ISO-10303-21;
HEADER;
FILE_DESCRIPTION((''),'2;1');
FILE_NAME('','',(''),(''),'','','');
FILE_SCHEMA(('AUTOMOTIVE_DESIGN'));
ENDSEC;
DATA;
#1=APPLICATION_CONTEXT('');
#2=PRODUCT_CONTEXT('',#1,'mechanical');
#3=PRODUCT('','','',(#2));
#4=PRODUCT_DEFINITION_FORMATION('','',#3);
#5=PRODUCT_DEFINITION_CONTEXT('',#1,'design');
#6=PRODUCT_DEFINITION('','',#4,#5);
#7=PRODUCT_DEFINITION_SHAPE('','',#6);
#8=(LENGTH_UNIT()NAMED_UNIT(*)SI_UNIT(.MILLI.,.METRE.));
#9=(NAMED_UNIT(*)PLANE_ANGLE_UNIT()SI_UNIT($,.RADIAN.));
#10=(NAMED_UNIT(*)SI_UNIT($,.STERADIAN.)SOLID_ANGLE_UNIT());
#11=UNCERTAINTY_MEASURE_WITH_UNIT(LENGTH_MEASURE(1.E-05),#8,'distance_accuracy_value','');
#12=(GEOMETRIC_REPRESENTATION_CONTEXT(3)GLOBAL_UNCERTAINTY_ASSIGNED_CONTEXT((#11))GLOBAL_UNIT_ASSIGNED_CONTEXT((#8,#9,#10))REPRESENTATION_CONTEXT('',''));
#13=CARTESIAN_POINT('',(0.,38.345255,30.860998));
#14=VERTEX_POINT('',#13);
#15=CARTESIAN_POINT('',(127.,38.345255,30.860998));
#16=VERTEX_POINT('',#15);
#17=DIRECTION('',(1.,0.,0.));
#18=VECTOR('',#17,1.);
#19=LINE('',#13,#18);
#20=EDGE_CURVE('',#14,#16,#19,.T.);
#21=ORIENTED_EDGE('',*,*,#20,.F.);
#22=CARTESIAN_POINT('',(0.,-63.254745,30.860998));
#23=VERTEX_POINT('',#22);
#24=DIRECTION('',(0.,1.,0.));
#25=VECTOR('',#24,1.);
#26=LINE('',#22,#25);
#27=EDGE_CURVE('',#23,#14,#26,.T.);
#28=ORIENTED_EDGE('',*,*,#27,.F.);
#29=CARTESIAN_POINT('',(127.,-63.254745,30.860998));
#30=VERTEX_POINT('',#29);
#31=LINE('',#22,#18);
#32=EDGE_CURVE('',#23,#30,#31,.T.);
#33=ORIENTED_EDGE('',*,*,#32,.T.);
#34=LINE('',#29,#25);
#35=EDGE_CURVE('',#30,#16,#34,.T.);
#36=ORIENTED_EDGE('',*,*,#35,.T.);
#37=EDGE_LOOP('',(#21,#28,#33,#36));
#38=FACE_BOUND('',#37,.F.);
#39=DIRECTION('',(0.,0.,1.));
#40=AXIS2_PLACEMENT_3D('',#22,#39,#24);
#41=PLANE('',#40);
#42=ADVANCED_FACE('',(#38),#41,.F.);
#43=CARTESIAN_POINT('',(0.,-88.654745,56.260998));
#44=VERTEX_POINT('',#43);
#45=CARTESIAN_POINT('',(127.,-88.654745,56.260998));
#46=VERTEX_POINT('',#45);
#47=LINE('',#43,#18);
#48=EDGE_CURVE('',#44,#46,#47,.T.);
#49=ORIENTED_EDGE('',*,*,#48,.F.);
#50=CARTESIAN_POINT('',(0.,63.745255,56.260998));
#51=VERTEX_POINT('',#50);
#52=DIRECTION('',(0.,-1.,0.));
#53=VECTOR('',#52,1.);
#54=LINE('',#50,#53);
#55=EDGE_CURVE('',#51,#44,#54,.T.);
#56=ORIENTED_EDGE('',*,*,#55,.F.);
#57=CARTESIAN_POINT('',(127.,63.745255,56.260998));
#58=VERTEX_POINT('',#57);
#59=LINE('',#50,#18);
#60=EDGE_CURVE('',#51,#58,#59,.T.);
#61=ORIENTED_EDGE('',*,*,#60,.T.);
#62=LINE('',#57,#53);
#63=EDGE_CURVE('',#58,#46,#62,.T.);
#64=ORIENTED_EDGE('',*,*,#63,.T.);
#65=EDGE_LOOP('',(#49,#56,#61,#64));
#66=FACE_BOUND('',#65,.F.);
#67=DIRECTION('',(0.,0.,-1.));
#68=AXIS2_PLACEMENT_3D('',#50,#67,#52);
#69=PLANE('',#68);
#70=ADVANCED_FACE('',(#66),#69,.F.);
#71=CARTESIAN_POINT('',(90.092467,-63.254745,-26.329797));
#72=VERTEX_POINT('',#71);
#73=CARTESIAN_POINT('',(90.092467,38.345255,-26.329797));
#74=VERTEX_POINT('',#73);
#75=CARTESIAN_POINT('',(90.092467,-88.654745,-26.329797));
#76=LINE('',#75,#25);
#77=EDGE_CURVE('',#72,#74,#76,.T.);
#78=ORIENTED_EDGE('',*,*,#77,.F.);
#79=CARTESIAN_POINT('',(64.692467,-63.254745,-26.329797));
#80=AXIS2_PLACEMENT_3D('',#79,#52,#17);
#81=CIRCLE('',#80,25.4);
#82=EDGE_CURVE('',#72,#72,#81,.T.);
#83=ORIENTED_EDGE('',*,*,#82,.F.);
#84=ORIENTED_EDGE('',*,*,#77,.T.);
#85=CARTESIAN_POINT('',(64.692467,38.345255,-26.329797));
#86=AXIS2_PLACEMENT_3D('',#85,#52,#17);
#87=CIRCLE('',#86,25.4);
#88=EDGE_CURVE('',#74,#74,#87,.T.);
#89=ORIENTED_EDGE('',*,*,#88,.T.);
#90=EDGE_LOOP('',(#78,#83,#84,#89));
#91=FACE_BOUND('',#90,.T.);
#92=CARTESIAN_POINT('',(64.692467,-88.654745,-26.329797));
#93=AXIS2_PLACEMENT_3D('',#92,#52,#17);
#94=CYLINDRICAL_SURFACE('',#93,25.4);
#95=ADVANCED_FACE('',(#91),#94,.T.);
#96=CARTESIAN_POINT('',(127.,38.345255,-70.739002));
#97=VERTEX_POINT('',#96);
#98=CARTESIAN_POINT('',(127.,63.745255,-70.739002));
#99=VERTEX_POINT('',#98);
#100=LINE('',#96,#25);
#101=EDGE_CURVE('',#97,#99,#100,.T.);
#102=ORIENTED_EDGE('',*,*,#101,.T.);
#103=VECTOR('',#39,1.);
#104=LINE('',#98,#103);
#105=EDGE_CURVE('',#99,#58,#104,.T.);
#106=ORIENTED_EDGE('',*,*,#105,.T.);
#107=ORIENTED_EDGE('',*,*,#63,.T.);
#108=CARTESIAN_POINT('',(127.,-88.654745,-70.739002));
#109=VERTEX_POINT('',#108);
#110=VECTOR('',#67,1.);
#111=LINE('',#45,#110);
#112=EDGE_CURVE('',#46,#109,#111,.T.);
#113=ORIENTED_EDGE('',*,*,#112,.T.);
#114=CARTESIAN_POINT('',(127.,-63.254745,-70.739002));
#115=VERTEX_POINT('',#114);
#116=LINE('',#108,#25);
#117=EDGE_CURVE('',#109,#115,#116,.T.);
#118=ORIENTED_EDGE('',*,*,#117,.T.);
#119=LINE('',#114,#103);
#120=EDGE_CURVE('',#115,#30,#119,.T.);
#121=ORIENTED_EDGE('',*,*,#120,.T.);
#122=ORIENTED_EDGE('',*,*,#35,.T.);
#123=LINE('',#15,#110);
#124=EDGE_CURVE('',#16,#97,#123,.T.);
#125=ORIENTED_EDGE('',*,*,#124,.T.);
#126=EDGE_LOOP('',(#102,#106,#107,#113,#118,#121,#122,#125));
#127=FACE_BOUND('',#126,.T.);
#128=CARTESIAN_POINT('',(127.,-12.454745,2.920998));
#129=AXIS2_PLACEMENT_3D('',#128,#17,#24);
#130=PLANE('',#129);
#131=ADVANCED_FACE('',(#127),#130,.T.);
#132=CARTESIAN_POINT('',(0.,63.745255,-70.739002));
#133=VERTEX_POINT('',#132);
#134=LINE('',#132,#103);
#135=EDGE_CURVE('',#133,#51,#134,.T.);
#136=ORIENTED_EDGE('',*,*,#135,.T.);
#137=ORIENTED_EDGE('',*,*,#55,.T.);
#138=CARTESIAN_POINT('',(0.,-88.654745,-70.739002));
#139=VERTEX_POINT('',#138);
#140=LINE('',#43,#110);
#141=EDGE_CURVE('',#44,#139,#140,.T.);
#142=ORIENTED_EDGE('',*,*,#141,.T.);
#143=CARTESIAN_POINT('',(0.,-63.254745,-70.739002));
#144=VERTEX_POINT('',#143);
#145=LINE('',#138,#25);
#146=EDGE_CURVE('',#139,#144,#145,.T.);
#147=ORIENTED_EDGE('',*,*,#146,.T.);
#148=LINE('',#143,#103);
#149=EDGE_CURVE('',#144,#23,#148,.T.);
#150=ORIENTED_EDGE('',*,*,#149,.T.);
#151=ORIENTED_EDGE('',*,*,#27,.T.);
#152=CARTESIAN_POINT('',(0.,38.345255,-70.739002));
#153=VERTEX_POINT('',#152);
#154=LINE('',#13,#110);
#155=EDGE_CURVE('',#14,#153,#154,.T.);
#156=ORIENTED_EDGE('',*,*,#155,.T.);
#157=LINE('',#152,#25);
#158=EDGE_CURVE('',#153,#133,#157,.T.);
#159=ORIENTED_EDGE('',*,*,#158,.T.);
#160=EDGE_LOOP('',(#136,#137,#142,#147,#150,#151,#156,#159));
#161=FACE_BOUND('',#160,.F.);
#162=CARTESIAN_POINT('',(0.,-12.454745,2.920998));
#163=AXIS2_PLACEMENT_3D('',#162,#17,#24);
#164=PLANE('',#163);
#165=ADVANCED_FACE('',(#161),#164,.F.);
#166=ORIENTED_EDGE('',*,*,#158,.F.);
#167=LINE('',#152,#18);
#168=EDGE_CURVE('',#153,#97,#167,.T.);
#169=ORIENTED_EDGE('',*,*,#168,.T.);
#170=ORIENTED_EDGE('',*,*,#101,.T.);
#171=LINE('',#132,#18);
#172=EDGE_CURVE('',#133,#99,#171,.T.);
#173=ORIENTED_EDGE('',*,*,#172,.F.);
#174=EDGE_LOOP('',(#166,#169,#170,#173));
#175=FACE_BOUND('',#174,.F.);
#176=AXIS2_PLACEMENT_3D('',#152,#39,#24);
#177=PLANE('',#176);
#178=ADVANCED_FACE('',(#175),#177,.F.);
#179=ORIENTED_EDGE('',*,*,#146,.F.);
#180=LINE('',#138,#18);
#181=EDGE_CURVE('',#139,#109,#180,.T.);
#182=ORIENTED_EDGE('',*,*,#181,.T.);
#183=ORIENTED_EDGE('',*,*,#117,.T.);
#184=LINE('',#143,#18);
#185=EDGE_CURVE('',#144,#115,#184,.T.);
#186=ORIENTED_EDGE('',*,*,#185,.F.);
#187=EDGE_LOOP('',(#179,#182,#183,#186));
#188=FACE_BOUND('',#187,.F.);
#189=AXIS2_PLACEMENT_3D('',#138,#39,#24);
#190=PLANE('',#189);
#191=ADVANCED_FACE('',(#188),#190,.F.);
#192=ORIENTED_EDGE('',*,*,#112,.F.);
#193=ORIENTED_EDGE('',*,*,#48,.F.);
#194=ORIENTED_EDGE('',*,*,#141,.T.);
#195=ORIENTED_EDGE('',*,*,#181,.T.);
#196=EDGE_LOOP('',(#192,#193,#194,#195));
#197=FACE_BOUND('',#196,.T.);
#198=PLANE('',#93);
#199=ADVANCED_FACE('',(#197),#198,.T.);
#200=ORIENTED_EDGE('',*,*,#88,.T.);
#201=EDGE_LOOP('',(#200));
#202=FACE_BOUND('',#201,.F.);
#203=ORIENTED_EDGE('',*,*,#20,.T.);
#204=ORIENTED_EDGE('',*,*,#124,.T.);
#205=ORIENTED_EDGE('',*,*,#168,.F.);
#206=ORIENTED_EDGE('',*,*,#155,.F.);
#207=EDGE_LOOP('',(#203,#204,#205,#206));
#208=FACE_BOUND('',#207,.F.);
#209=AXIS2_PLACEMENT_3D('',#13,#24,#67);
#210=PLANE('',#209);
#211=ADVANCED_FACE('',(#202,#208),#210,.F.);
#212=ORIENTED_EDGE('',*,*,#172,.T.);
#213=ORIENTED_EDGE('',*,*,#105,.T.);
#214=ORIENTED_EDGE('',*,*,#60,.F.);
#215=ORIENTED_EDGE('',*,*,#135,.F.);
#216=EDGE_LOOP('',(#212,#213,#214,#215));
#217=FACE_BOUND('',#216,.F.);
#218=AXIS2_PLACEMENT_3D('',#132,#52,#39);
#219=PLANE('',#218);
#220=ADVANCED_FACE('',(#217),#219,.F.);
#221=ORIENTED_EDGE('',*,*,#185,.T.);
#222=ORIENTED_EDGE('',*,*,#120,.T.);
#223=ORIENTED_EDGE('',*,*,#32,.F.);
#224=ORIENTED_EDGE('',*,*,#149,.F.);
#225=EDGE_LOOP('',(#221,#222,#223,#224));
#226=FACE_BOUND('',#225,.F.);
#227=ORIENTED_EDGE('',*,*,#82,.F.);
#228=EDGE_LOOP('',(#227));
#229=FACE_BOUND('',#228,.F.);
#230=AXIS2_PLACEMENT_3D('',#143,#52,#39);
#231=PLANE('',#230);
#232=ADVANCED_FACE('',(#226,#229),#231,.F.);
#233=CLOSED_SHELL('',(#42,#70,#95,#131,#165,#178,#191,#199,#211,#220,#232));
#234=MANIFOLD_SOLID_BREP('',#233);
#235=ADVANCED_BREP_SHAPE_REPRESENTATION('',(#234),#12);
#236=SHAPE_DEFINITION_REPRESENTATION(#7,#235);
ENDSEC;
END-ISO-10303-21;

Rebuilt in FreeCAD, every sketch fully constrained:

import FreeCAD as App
import Part
import Sketcher
from FreeCAD import Vector
Q = App.Units.Quantity

doc = App.newDocument("Part")
body = doc.addObject("PartDesign::Body", "Body")

sketch1 = body.newObject("Sketcher::SketchObject", "Sketch")
sketch1.AttachmentSupport = (doc.getObject("YZ_Plane"), [""])
sketch1.MapMode = "FlatFace"
sketch1.addGeometry(Part.LineSegment(Vector(64, 56, 0), Vector(-89, 56, 0)), False)
sketch1.addGeometry(Part.LineSegment(Vector(-89, 56, 0), Vector(-89, -71, 0)), False)
sketch1.addGeometry(Part.LineSegment(Vector(-89, -71, 0), Vector(-63, -71, 0)), False)
sketch1.addGeometry(Part.LineSegment(Vector(-63, -71, 0), Vector(-63, 31, 0)), False)
sketch1.addGeometry(Part.LineSegment(Vector(-63, 31, 0), Vector(38, 31, 0)), False)
sketch1.addGeometry(Part.LineSegment(Vector(38, 31, 0), Vector(38, -71, 0)), False)
sketch1.addGeometry(Part.LineSegment(Vector(38, -71, 0), Vector(64, -71, 0)), False)
sketch1.addGeometry(Part.LineSegment(Vector(64, -71, 0), Vector(64, 56, 0)), False)
sketch1.addConstraint(Sketcher.Constraint("Coincident", 0, 2, 1, 1))
sketch1.addConstraint(Sketcher.Constraint("Coincident", 1, 2, 2, 1))
sketch1.addConstraint(Sketcher.Constraint("Coincident", 2, 2, 3, 1))
sketch1.addConstraint(Sketcher.Constraint("Coincident", 3, 2, 4, 1))
sketch1.addConstraint(Sketcher.Constraint("Coincident", 4, 2, 5, 1))
sketch1.addConstraint(Sketcher.Constraint("Coincident", 5, 2, 6, 1))
sketch1.addConstraint(Sketcher.Constraint("Coincident", 6, 2, 7, 1))
sketch1.addConstraint(Sketcher.Constraint("Coincident", 7, 2, 0, 1))
sketch1.addConstraint(Sketcher.Constraint("Horizontal", 0))
sketch1.addConstraint(Sketcher.Constraint("Vertical", 1))
sketch1.addConstraint(Sketcher.Constraint("Horizontal", 2))
sketch1.addConstraint(Sketcher.Constraint("Vertical", 3))
sketch1.addConstraint(Sketcher.Constraint("Horizontal", 4))
sketch1.addConstraint(Sketcher.Constraint("Vertical", 5))
sketch1.addConstraint(Sketcher.Constraint("Horizontal", 6))
sketch1.addConstraint(Sketcher.Constraint("Vertical", 7))
sketch1.addConstraint(Sketcher.Constraint("Horizontal", 2, 2, 5, 2))
sketch1.addConstraint(Sketcher.Constraint("Equal", 2, 6))
sketch1.addConstraint(Sketcher.Constraint("Equal", 4, 3))
sketch1.addConstraint(Sketcher.Constraint("DistanceX", 0, 2, 0, 1, Q("6 in")))
sketch1.addConstraint(Sketcher.Constraint("DistanceX", 2, 1, 2, 2, Q("1 in")))
sketch1.addConstraint(Sketcher.Constraint("DistanceY", 1, 2, 1, 1, Q("5 in")))
sketch1.addConstraint(Sketcher.Constraint("DistanceY", -1, 1, 0, 2, Q("2.2149999 in")))
sketch1.addConstraint(Sketcher.Constraint("DistanceX", 0, 2, -1, 1, Q("88.654745 mm")))
pad1 = body.newObject("PartDesign::Pad", "Pad")
pad1.Profile = sketch1
pad1.Length = Q("5 in")

sketch2 = body.newObject("Sketcher::SketchObject", "Sketch001")
sketch2.AttachmentSupport = (doc.getObject("XZ_Plane"), [""])
sketch2.MapMode = "FlatFace"
sketch2.AttachmentOffset = App.Placement(Vector(0, 0, 88.654745), App.Rotation())
sketch2.addGeometry(Part.Circle(Vector(65, -26, 0), Vector(0, 0, 1), 25), False)
sketch2.addConstraint(Sketcher.Constraint("Diameter", 0, Q("2 in")))
sketch2.addConstraint(Sketcher.Constraint("DistanceX", -1, 1, 0, 3, Q("64.692467 mm")))
sketch2.addConstraint(Sketcher.Constraint("DistanceY", 0, 3, -1, 1, Q("26.329797 mm")))
pad2 = body.newObject("PartDesign::Pad", "Pad001")
pad2.Profile = sketch2
pad2.Length = Q("6 in")
pad2.Reversed = True

doc.recompute()
